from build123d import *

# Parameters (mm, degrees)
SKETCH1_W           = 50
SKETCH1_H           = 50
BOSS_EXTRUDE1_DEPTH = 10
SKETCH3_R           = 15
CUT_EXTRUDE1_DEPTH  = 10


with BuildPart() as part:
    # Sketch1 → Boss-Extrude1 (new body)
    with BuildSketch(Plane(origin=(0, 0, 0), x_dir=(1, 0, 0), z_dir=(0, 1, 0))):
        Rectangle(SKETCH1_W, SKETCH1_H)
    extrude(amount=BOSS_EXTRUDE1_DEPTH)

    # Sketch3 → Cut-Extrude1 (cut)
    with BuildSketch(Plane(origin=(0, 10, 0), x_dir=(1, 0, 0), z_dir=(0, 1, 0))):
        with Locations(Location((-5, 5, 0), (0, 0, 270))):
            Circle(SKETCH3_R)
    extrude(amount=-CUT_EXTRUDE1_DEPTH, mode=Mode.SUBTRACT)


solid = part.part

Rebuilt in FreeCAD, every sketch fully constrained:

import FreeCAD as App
import Part
import Sketcher

doc = App.newDocument("Part")
body = doc.addObject("PartDesign::Body", "Body")

# Sketch on XZ plane
sketch1 = body.newObject("Sketcher::SketchObject", "Sketch")
sketch1.AttachmentSupport = (doc.getObject("XZ_Plane"), [""])
sketch1.MapMode = "FlatFace"
sketch1.addGeometry(Part.LineSegment(App.Vector(-25, -25, 0), App.Vector(-25, 25, 0)), False)
sketch1.addGeometry(Part.LineSegment(App.Vector(-25, 25, 0), App.Vector(25, 25, 0)), False)
sketch1.addGeometry(Part.LineSegment(App.Vector(25, 25, 0), App.Vector(25, -25, 0)), False)
sketch1.addGeometry(Part.LineSegment(App.Vector(25, -25, 0), App.Vector(-25, -25, 0)), False)
sketch1.addConstraint(Sketcher.Constraint("Coincident", 0, 2, 1, 1))
sketch1.addConstraint(Sketcher.Constraint("Coincident", 1, 2, 2, 1))
sketch1.addConstraint(Sketcher.Constraint("Coincident", 2, 2, 3, 1))
sketch1.addConstraint(Sketcher.Constraint("Coincident", 3, 2, 0, 1))
sketch1.addConstraint(Sketcher.Constraint("Vertical", 0))
sketch1.addConstraint(Sketcher.Constraint("Horizontal", 1))
sketch1.addConstraint(Sketcher.Constraint("Vertical", 2))
sketch1.addConstraint(Sketcher.Constraint("Horizontal", 3))
sketch1.addConstraint(Sketcher.Constraint("Symmetric", 0, 2, 2, 2, -1, 1))
sketch1.addConstraint(Sketcher.Constraint("Equal", 3, 0))
sketch1.addConstraint(Sketcher.Constraint("DistanceX", 1, 1, 1, 2, 50.0))
pad1 = body.newObject("PartDesign::Pad", "Pad")
pad1.Profile = sketch1
pad1.Length = 10
pad1.Reversed = True

# Sketch on XZ plane
sketch2 = body.newObject("Sketcher::SketchObject", "Sketch001")
sketch2.AttachmentSupport = (doc.getObject("XZ_Plane"), [""])
sketch2.MapMode = "FlatFace"
sketch2.AttachmentOffset = App.Placement(App.Vector(0, 0, -10), App.Rotation())
sketch2.addGeometry(Part.Circle(App.Vector(-5, -5, 0), App.Vector(0, 0, 1), 15), False)
sketch2.addConstraint(Sketcher.Constraint("Diameter", 0, 30.0))
sketch2.addConstraint(Sketcher.Constraint("DistanceX", 0, 3, -1, 1, 5.0))
sketch2.addConstraint(Sketcher.Constraint("DistanceY", 0, 3, -1, 1, 5.0))
pocket1 = body.newObject("PartDesign::Pocket", "Pocket")
pocket1.Profile = sketch2
pocket1.Length = 10
pocket1.Reversed = True

doc.recompute()
